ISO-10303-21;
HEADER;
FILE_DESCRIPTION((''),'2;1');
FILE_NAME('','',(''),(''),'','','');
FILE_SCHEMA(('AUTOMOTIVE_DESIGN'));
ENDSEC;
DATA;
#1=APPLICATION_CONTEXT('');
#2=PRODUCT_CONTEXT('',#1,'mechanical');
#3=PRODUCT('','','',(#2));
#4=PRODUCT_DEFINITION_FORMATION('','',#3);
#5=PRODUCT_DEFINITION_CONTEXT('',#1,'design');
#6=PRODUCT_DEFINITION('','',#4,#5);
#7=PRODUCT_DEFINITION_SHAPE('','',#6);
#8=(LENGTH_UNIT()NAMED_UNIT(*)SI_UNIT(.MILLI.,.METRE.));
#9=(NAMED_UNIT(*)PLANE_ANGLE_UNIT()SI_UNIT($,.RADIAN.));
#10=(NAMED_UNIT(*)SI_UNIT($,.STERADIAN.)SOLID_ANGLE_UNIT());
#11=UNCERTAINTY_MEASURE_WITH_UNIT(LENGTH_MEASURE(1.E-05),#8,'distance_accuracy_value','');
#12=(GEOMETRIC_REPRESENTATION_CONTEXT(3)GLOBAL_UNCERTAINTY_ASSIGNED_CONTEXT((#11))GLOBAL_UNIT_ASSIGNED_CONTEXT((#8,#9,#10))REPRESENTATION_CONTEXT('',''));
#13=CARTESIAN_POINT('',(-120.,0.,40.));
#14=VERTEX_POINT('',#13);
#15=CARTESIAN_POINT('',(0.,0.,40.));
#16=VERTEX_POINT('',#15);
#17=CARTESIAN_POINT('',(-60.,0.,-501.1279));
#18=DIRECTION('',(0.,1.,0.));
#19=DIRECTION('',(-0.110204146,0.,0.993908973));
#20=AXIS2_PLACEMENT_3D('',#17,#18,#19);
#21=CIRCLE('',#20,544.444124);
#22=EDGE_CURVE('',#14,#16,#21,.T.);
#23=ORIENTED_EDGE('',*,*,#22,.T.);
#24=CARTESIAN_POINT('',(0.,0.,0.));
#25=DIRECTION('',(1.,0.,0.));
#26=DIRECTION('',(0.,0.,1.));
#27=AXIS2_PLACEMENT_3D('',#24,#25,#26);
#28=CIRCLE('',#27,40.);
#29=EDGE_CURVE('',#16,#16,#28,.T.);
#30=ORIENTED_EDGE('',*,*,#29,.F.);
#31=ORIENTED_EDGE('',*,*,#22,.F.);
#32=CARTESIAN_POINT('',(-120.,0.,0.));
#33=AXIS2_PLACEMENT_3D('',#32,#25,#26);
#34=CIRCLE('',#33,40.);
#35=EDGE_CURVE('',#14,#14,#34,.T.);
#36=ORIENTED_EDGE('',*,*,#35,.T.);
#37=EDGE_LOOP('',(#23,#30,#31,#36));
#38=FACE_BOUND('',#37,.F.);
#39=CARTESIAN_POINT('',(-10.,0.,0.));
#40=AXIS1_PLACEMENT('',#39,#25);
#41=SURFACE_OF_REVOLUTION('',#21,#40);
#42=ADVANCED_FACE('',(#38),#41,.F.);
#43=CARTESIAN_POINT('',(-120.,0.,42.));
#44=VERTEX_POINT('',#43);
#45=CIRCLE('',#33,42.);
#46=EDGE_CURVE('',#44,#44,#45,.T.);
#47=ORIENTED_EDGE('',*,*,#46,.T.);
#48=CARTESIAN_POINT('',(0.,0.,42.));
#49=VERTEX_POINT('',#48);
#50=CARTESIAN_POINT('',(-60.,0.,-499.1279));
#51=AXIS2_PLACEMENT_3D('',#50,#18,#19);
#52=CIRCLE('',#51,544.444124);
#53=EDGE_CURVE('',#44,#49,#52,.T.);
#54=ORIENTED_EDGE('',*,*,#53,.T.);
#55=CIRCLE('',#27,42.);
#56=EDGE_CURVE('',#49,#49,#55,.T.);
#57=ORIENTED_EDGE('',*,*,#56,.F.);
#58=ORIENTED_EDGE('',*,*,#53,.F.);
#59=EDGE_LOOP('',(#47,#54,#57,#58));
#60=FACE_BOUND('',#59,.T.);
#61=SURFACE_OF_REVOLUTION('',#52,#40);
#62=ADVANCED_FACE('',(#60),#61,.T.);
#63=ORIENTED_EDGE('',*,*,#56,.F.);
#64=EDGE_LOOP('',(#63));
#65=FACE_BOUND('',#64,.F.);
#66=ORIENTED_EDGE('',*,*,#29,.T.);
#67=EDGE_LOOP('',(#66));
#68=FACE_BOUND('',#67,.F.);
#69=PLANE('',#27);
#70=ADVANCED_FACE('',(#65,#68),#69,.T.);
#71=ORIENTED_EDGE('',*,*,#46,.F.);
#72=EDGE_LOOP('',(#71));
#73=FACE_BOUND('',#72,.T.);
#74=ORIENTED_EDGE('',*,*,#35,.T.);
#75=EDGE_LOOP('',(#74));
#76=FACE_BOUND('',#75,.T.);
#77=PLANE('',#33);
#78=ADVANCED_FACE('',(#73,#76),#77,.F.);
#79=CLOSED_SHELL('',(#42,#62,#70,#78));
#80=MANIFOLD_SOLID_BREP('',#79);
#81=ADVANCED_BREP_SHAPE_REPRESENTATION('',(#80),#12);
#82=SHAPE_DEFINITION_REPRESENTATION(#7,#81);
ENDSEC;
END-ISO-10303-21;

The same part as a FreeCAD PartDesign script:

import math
import FreeCAD as App
import Part
import Sketcher

V = App.Vector

doc = App.newDocument("Part")
params = doc.addObject("Spreadsheet::Sheet", "Params")
for row, (alias, value) in enumerate([
    ("sketch1_height", "2 mm"),
    ("revolution_angle", "360 deg"),
], start=1):
    params.set(f"A{row}", alias)
    params.set(f"B{row}", "=" + value)
    params.setAlias(f"B{row}", alias)

body = doc.addObject("PartDesign::Body", "Body")

# Sketch on XZ plane
sketch1 = body.newObject("Sketcher::SketchObject", "Sketch")
sketch1.AttachmentSupport = (doc.getObject("XZ_Plane"), [""])
sketch1.MapMode = "FlatFace"
sketch1.addGeometry([
    Part.LineSegment(V(0, 42, 0), V(0, 40, 0)),
    Part.ArcOfCircle(Part.Circle(V(-60, -501.1, 0), V(0, 0, 1), 544.4), math.radians(83.67), math.radians(96.33)),
    Part.LineSegment(V(-120, 40, 0), V(-120, 42, 0)),
    Part.ArcOfCircle(Part.Circle(V(-60, -499.1, 0), V(0, 0, 1), 544.4), math.radians(83.67), math.radians(96.33)),
], False)
sketch1.addConstraint([
    Sketcher.Constraint("Coincident", 0, 2, 1, 1),
    Sketcher.Constraint("Coincident", 1, 2, 2, 1),
    Sketcher.Constraint("Coincident", 2, 2, 3, 2),
    Sketcher.Constraint("Coincident", 3, 1, 0, 1),
    Sketcher.Constraint("Vertical", 0),
    Sketcher.Constraint("Vertical", 2),
    Sketcher.Constraint("Equal", 1, 3),
    Sketcher.Constraint("PointOnObject", 0, 2, -2),
    Sketcher.Constraint("Horizontal", 0, 2, 1, 2),
    Sketcher.Constraint("Horizontal", 2, 2, 3, 1),
    Sketcher.Constraint("DistanceY", 0, 2, 0, 1, 2.0),
    Sketcher.Constraint("DistanceY", -1, 1, 0, 2, 40.0),
    Sketcher.Constraint("DistanceX", 2, 2, -1, 1, 120.0),
    Sketcher.Constraint("Radius", 1, 544.4441),
])
sketch1.setExpression("Constraints[10]", "Params.sketch1_height")
revolution = body.newObject("PartDesign::Revolution", "Revolution")
revolution.Profile = sketch1
revolution.ReferenceAxis = (sketch1, ["H_Axis"])
revolution.setExpression("Angle", "Params.revolution_angle")

doc.recompute()
